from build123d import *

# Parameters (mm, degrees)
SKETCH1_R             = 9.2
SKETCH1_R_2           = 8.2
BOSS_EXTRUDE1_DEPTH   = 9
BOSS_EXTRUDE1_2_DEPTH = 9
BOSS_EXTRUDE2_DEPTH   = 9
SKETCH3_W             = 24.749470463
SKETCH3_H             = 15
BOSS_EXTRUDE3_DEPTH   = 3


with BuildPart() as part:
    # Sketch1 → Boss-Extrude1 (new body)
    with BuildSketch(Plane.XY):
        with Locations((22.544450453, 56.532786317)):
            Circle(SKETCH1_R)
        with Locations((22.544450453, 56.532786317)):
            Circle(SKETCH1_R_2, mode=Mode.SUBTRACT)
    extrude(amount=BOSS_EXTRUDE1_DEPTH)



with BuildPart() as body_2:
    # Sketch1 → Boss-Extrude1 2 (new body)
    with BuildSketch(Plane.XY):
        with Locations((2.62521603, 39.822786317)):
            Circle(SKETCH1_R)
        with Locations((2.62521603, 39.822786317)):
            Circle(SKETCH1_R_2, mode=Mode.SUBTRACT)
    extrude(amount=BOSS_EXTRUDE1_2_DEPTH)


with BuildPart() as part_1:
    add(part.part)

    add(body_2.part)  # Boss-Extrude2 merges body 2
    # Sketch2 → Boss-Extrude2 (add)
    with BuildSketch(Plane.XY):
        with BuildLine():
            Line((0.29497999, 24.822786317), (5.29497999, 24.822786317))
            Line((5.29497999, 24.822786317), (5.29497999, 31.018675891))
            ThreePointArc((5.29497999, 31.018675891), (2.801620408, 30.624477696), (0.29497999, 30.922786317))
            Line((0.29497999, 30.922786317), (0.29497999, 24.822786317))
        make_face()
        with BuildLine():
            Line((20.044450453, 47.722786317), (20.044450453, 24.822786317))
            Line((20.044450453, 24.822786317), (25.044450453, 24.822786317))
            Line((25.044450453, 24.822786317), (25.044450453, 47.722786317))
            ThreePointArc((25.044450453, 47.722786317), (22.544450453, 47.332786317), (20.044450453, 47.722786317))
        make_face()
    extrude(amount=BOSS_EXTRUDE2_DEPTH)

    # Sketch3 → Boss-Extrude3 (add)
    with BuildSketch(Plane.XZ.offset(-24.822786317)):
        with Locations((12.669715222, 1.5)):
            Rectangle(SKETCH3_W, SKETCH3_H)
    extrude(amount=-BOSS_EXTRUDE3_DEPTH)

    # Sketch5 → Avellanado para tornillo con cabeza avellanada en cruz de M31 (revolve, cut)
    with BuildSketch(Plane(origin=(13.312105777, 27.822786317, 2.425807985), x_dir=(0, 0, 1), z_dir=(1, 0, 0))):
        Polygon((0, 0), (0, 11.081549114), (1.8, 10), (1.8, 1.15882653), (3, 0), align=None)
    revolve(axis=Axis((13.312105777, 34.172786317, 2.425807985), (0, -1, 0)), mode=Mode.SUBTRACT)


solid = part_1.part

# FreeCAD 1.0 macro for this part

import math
import FreeCAD as App
import Part
import Sketcher
from FreeCAD import Vector
Q = App.Units.Quantity

doc = App.newDocument("Part")
body = doc.addObject("PartDesign::Body", "Body")

sketch1 = body.newObject("Sketcher::SketchObject", "Sketch")
sketch1.AttachmentSupport = (doc.getObject("XY_Plane"), [""])
sketch1.MapMode = "FlatFace"
sketch1.addGeometry(Part.Circle(Vector(22.54445, 56.532786, 0), Vector(0, 0, 1), 9.2), False)
sketch1.addGeometry(Part.Circle(Vector(22.54445, 56.532786, 0), Vector(0, 0, 1), 8.2), False)
sketch1.addConstraint(Sketcher.Constraint("Coincident", 1, 3, 0, 3))
sketch1.addConstraint(Sketcher.Constraint("Diameter", 0, Q("18.4 mm")))
sketch1.addConstraint(Sketcher.Constraint("Diameter", 1, Q("16.4 mm")))
sketch1.addConstraint(Sketcher.Constraint("DistanceX", -1, 1, 0, 3, Q("22.54445 mm")))
sketch1.addConstraint(Sketcher.Constraint("DistanceY", -1, 1, 0, 3, Q("56.532786 mm")))
pad1 = body.newObject("PartDesign::Pad", "Pad")
pad1.Profile = sketch1
pad1.Length = 9
body2 = doc.addObject("PartDesign::Body", "Body001")

sketch2 = body2.newObject("Sketcher::SketchObject", "Sketch001")
sketch2.AttachmentSupport = (doc.getObject("XY_Plane001"), [""])
sketch2.MapMode = "FlatFace"
sketch2.addGeometry(Part.Circle(Vector(2.625216, 39.822786, 0), Vector(0, 0, 1), 9.2), False)
sketch2.addGeometry(Part.Circle(Vector(2.625216, 39.822786, 0), Vector(0, 0, 1), 8.2), False)
sketch2.addConstraint(Sketcher.Constraint("Coincident", 1, 3, 0, 3))
sketch2.addConstraint(Sketcher.Constraint("Diameter", 0, Q("18.4 mm")))
sketch2.addConstraint(Sketcher.Constraint("Diameter", 1, Q("16.4 mm")))
sketch2.addConstraint(Sketcher.Constraint("DistanceX", -1, 1, 0, 3, Q("2.625216 mm")))
sketch2.addConstraint(Sketcher.Constraint("DistanceY", -1, 1, 0, 3, Q("39.822786 mm")))
pad2 = body2.newObject("PartDesign::Pad", "Pad001")
pad2.Profile = sketch2
pad2.Length = 9
body.AllowCompound = True
doc.recompute()

boolean = body.newObject("PartDesign::Boolean", "Boolean")
boolean.Type = "Fuse"
boolean.addObjects([body2])

sketch3 = body.newObject("Sketcher::SketchObject", "Sketch002")
sketch3.AttachmentSupport = (doc.getObject("XY_Plane"), [""])
sketch3.MapMode = "FlatFace"
sketch3.addGeometry(Part.LineSegment(Vector(0.29498, 24.822786, 0), Vector(5.29498, 24.822786, 0)), False)
sketch3.addGeometry(Part.LineSegment(Vector(5.29498, 24.822786, 0), Vector(5.29498, 31.018676, 0)), False)
sketch3.addGeometry(Part.ArcOfCircle(Part.Circle(Vector(2.625216, 39.822786, 0), Vector(0, 0, 1), 9.2), math.radians(-104.672077), math.radians(-73.130565)), False)
sketch3.addGeometry(Part.LineSegment(Vector(0.29498, 30.922786, 0), Vector(0.29498, 24.822786, 0)), False)
sketch3.addGeometry(Part.LineSegment(Vector(20.04445, 47.722786, 0), Vector(20.04445, 24.822786, 0)), False)
sketch3.addGeometry(Part.LineSegment(Vector(20.04445, 24.822786, 0), Vector(25.04445, 24.822786, 0)), False)
sketch3.addGeometry(Part.LineSegment(Vector(25.04445, 24.822786, 0), Vector(25.04445, 47.722786, 0)), False)
sketch3.addGeometry(Part.ArcOfCircle(Part.Circle(Vector(22.54445, 55.540607, 0), Vector(0, 0, 1), 8.207821), math.radians(-107.733352), math.radians(-72.266648)), False)
sketch3.addConstraint(Sketcher.Constraint("Coincident", 0, 2, 1, 1))
sketch3.addConstraint(Sketcher.Constraint("Coincident", 1, 2, 2, 2))
sketch3.addConstraint(Sketcher.Constraint("Coincident", 2, 1, 3, 1))
sketch3.addConstraint(Sketcher.Constraint("Coincident", 3, 2, 0, 1))
sketch3.addConstraint(Sketcher.Constraint("Coincident", 4, 2, 5, 1))
sketch3.addConstraint(Sketcher.Constraint("Coincident", 5, 2, 6, 1))
sketch3.addConstraint(Sketcher.Constraint("Coincident", 6, 2, 7, 2))
sketch3.addConstraint(Sketcher.Constraint("Coincident", 7, 1, 4, 1))
sketch3.addConstraint(Sketcher.Constraint("Horizontal", 0))
sketch3.addConstraint(Sketcher.Constraint("Vertical", 1))
sketch3.addConstraint(Sketcher.Constraint("Vertical", 3))
sketch3.addConstraint(Sketcher.Constraint("Vertical", 4))
sketch3.addConstraint(Sketcher.Constraint("Horizontal", 5))
sketch3.addConstraint(Sketcher.Constraint("Vertical", 6))
sketch3.addConstraint(Sketcher.Constraint("Horizontal", 3, 2, 4, 2))
sketch3.addConstraint(Sketcher.Constraint("Horizontal", 6, 2, 7, 1))
sketch3.addConstraint(Sketcher.Constraint("Equal", 0, 5))
sketch3.addConstraint(Sketcher.Constraint("Radius", 2, Q("9.2 mm")))
sketch3.addConstraint(Sketcher.Constraint("DistanceX", 0, 1, 0, 2, Q("5 mm")))
sketch3.addConstraint(Sketcher.Constraint("DistanceY", 3, 2, 3, 1, Q("6.1 mm")))
sketch3.addConstraint(Sketcher.Constraint("DistanceY", 4, 2, 4, 1, Q("22.9 mm")))
sketch3.addConstraint(Sketcher.Constraint("DistanceY", 0, 2, 2, 3, Q("15 mm")))
sketch3.addConstraint(Sketcher.Constraint("Radius", 7, Q("8.207821 mm")))
sketch3.addConstraint(Sketcher.Constraint("DistanceX", -1, 1, 7, 3, Q("22.54445 mm")))
sketch3.addConstraint(Sketcher.Constraint("DistanceX", -1, 1, 0, 2, Q("5.29498 mm")))
sketch3.addConstraint(Sketcher.Constraint("DistanceY", -1, 1, 2, 3, Q("39.822786 mm")))
pad3 = body.newObject("PartDesign::Pad", "Pad002")
pad3.Profile = sketch3
pad3.Length = 9

sketch4 = body.newObject("Sketcher::SketchObject", "Sketch003")
sketch4.AttachmentSupport = (doc.getObject("XZ_Plane"), [""])
sketch4.MapMode = "FlatFace"
sketch4.AttachmentOffset = App.Placement(Vector(0, 0, -24.822786), App.Rotation())
sketch4.addGeometry(Part.LineSegment(Vector(0.29498, 9, 0), Vector(0.29498, -6, 0)), False)
sketch4.addGeometry(Part.LineSegment(Vector(0.29498, -6, 0), Vector(25.04445, -6, 0)), False)
sketch4.addGeometry(Part.LineSegment(Vector(25.04445, -6, 0), Vector(25.04445, 9, 0)), False)
sketch4.addGeometry(Part.LineSegment(Vector(25.04445, 9, 0), Vector(0.29498, 9, 0)), False)
sketch4.addConstraint(Sketcher.Constraint("Coincident", 0, 2, 1, 1))
sketch4.addConstraint(Sketcher.Constraint("Coincident", 1, 2, 2, 1))
sketch4.addConstraint(Sketcher.Constraint("Coincident", 2, 2, 3, 1))
sketch4.addConstraint(Sketcher.Constraint("Coincident", 3, 2, 0, 1))
sketch4.addConstraint(Sketcher.Constraint("Vertical", 0))
sketch4.addConstraint(Sketcher.Constraint("Horizontal", 1))
sketch4.addConstraint(Sketcher.Constraint("Vertical", 2))
sketch4.addConstraint(Sketcher.Constraint("Horizontal", 3))
sketch4.addConstraint(Sketcher.Constraint("DistanceY", 0, 2, 0, 1, Q("15 mm")))
sketch4.addConstraint(Sketcher.Constraint("DistanceY", 0, 2, -1, 1, Q("6 mm")))
sketch4.addConstraint(Sketcher.Constraint("DistanceX", 1, 1, 1, 2, Q("24.74947 mm")))
sketch4.addConstraint(Sketcher.Constraint("DistanceX", -1, 1, 0, 2, Q("0.29498 mm")))
pad4 = body.newObject("PartDesign::Pad", "Pad003")
pad4.Profile = sketch4
pad4.Length = 3
pad4.Reversed = True

sketch5 = body.newObject("Sketcher::SketchObject", "Sketch004")
sketch5.AttachmentSupport = (doc.getObject("YZ_Plane"), [""])
sketch5.MapMode = "FlatFace"
sketch5.AttachmentOffset = App.Placement(Vector(0, 0, 13.312106), App.Rotation())
sketch5.addGeometry(Part.LineSegment(Vector(16.741237, 2.425808, 0), Vector(27.822786, 2.425808, 0)), False)
sketch5.addGeometry(Part.LineSegment(Vector(27.822786, 2.425808, 0), Vector(27.822786, 5.425808, 0)), False)
sketch5.addGeometry(Part.LineSegment(Vector(27.822786, 5.425808, 0), Vector(26.66396, 4.225808, 0)), False)
sketch5.addGeometry(Part.LineSegment(Vector(26.66396, 4.225808, 0), Vector(17.822786, 4.225808, 0)), False)
sketch5.addGeometry(Part.LineSegment(Vector(17.822786, 4.225808, 0), Vector(16.741237, 2.425808, 0)), False)
sketch5.addGeometry(Part.LineSegment(Vector(27.822786, 2.425808, 0), Vector(16.741237, 2.425808, 0)), True)
sketch5.addConstraint(Sketcher.Constraint("Coincident", 0, 2, 1, 1))
sketch5.addConstraint(Sketcher.Constraint("Coincident", 1, 2, 2, 1))
sketch5.addConstraint(Sketcher.Constraint("Coincident", 2, 2, 3, 1))
sketch5.addConstraint(Sketcher.Constraint("Coincident", 3, 2, 4, 1))
sketch5.addConstraint(Sketcher.Constraint("Coincident", 4, 2, 0, 1))
sketch5.addConstraint(Sketcher.Constraint("Horizontal", 0))
sketch5.addConstraint(Sketcher.Constraint("Vertical", 1))
sketch5.addConstraint(Sketcher.Constraint("Horizontal", 3))
sketch5.addConstraint(Sketcher.Constraint("Horizontal", 5))
sketch5.addConstraint(Sketcher.Constraint("Coincident", 5, 1, 0, 2))
sketch5.addConstraint(Sketcher.Constraint("Equal", 0, 5))
sketch5.addConstraint(Sketcher.Constraint("DistanceY", 1, 1, 1, 2, Q("3 mm")))
sketch5.addConstraint(Sketcher.Constraint("Angle", 2, Q("-134 deg")))
sketch5.addConstraint(Sketcher.Constraint("Angle", 4, Q("-121 deg")))
sketch5.addConstraint(Sketcher.Constraint("DistanceX", 3, 2, 1, 2, Q("10 mm")))
sketch5.addConstraint(Sketcher.Constraint("DistanceY", 2, 2, 1, 2, Q("1.2 mm")))
sketch5.addConstraint(Sketcher.Constraint("DistanceX", -1, 1, 2, 2, Q("26.66396 mm")))
sketch5.addConstraint(Sketcher.Constraint("DistanceY", -1, 1, 0, 2, Q("2.425808 mm")))
groove = body.newObject("PartDesign::Groove", "Groove")
groove.Profile = sketch5
groove.ReferenceAxis = (sketch5, ["Axis0"])
groove.Angle = 360

doc.recompute()
